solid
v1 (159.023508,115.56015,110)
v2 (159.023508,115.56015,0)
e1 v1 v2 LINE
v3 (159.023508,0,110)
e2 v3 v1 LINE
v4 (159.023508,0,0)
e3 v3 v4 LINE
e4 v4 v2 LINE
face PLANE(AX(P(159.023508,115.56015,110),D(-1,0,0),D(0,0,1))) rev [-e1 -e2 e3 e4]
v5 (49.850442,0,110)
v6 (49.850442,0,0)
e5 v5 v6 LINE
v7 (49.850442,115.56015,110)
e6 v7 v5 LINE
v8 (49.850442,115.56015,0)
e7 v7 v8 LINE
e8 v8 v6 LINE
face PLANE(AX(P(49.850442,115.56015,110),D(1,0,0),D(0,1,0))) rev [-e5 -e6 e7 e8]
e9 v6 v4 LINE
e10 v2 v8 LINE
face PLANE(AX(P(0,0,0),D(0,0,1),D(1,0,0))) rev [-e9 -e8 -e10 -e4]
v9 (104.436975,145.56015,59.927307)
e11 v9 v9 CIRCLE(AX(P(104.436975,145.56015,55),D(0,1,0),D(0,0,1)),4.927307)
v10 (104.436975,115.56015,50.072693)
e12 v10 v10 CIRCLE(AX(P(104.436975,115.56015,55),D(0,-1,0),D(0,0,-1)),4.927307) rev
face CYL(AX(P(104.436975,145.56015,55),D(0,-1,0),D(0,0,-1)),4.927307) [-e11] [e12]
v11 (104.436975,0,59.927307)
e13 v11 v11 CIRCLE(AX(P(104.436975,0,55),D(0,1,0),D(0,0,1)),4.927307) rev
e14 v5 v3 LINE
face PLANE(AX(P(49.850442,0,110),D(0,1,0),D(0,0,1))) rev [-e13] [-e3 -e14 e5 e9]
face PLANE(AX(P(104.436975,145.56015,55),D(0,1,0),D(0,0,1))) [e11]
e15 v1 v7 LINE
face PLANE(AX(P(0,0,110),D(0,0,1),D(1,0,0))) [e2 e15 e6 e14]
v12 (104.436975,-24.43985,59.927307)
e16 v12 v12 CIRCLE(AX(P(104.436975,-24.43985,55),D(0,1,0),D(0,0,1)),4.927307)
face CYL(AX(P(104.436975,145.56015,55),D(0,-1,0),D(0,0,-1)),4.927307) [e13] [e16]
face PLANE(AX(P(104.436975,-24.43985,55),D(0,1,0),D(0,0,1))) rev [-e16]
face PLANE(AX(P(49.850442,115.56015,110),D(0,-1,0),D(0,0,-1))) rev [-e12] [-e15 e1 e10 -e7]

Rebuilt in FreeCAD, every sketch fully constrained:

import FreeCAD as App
import Part
import Sketcher

V = App.Vector


def add_polygon(sketch, points):
    """Adds a closed chain of lines whose ends are joined by coincident constraints."""
    first, n = sketch.GeometryCount, len(points)
    for a, b in zip(points, points[1:] + points[:1]):
        sketch.addGeometry(Part.LineSegment(App.Vector(*a, 0), App.Vector(*b, 0)), False)
    for i in range(n):
        sketch.addConstraint(Sketcher.Constraint("Coincident", first + i, 2, first + (i + 1) % n, 1))

doc = App.newDocument("Part")
body = doc.addObject("PartDesign::Body", "Body")

# Sketch on XY plane
sketch1 = body.newObject("Sketcher::SketchObject", "Sketch")
sketch1.AttachmentSupport = (doc.getObject("XY_Plane"), [""])
sketch1.MapMode = "FlatFace"
add_polygon(sketch1, [(50, 116), (50, 0), (159, 0), (159, 116)])  # lines 0-3
sketch1.addConstraint([
    Sketcher.Constraint("Vertical", 0),
    Sketcher.Constraint("Horizontal", 1),
    Sketcher.Constraint("Vertical", 2),
    Sketcher.Constraint("Horizontal", 3),
    Sketcher.Constraint("PointOnObject", 0, 2, -1),
    Sketcher.Constraint("DistanceY", 0, 2, 0, 1, 115.56015),
    Sketcher.Constraint("DistanceX", 1, 1, 1, 2, 109.173065),
    Sketcher.Constraint("DistanceX", -1, 1, 0, 2, 49.850442),
])
pad1 = body.newObject("PartDesign::Pad", "Pad")
pad1.Profile = sketch1
pad1.Length = 110

# Sketch on XZ plane
sketch2 = body.newObject("Sketcher::SketchObject", "Sketch001")
sketch2.AttachmentSupport = (doc.getObject("XZ_Plane"), [""])
sketch2.MapMode = "FlatFace"
sketch2.AttachmentOffset = App.Placement(V(0, 0, -115.56015), App.Rotation())
sketch2.addGeometry(Part.Circle(V(104.4, 55, 0), V(0, 0, 1), 4.9), False)
sketch2.addConstraint([
    Sketcher.Constraint("DistanceY", -1, 1, 0, 3, 55.0),
    Sketcher.Constraint("Diameter", 0, 9.854613),
    Sketcher.Constraint("DistanceX", -1, 1, 0, 3, 104.436975),
])
pad2 = body.newObject("PartDesign::Pad", "Pad001")
pad2.Profile = sketch2
pad2.Type = "TwoLengths"
pad2.Length = 30
pad2.Length2 = 140
pad2.Reversed = True

doc.recompute()
